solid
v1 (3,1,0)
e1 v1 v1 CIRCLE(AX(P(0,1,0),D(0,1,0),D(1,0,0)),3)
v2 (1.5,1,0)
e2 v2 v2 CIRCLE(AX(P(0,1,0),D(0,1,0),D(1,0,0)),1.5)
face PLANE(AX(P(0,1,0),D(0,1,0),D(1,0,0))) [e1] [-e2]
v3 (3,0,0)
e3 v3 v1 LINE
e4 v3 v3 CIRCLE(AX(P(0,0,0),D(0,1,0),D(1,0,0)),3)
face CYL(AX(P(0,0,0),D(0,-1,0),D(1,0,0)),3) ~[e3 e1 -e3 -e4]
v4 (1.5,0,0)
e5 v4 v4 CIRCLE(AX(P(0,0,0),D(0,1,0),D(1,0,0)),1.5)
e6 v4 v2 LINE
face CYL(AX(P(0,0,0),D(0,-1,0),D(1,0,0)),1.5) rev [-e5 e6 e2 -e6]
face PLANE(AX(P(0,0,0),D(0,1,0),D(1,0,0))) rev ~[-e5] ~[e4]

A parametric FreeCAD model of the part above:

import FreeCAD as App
import Part
import Sketcher
Q = App.Units.Quantity

doc = App.newDocument("Part")
body = doc.addObject("PartDesign::Body", "Body")

sketch1 = doc.addObject("Sketcher::SketchObject", "Sketch")
body.addObject(sketch1)
sketch1.AttachmentSupport = (doc.XZ_Plane, [""])
sketch1.MapMode = "FlatFace"
sketch1.addGeometry([
    Part.Circle(App.Vector(0, 0, 0), App.Vector(0, 0, 1), 3),
    Part.Circle(App.Vector(0, 0, 0), App.Vector(0, 0, 1), 1.5),
], False)
sketch1.addConstraint([
    Sketcher.Constraint("Coincident", 0, 3, -1, 1),
    Sketcher.Constraint("Coincident", 1, 3, -1, 1),
    Sketcher.Constraint("Diameter", 0, Q("6 mm")),
    Sketcher.Constraint("Diameter", 1, Q("3 mm")),
])
pad1 = doc.addObject("PartDesign::Pad", "Pad")
body.addObject(pad1)
pad1.Profile = sketch1
pad1.Length = 1
pad1.Reversed = True

doc.recompute()
